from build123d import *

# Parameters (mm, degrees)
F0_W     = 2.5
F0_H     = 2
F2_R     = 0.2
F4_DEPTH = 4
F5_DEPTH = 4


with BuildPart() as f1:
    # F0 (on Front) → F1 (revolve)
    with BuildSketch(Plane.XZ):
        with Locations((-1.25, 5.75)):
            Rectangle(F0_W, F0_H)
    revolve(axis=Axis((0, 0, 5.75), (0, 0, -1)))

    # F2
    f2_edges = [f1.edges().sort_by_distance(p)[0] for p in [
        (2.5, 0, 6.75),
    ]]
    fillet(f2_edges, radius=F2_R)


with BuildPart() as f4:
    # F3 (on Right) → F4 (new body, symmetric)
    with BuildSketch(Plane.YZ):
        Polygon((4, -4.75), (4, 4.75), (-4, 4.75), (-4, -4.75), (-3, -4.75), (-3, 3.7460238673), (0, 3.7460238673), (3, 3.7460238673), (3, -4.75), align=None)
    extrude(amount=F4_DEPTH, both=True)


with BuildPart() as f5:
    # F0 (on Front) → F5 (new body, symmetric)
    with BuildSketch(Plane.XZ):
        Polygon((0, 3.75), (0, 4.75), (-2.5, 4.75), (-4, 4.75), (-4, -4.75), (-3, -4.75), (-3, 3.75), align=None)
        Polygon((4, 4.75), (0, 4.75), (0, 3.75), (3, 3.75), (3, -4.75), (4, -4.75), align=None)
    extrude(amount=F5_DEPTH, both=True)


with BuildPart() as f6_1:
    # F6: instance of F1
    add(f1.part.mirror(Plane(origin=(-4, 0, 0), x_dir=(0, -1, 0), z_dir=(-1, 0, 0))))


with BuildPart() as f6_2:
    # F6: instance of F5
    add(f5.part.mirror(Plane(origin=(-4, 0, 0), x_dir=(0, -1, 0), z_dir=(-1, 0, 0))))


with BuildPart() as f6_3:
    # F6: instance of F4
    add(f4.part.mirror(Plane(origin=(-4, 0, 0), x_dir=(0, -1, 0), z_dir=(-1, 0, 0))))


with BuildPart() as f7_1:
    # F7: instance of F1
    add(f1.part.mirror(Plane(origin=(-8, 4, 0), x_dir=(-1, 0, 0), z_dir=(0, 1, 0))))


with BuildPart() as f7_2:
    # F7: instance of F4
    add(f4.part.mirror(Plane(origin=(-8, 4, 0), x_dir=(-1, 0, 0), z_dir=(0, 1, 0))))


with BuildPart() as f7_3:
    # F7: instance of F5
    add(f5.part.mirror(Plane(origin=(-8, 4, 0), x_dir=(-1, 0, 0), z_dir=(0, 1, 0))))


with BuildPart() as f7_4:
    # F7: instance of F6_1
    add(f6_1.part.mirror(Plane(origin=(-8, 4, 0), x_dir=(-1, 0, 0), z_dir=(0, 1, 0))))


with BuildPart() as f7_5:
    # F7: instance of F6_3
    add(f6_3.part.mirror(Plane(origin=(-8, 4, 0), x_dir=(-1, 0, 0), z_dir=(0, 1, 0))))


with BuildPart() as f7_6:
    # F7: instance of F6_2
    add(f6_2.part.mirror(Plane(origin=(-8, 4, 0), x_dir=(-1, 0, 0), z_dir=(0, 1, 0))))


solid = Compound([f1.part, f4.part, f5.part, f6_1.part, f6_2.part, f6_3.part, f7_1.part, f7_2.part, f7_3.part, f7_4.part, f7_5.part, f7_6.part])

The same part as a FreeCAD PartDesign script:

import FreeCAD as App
import Part
import Sketcher
Q = App.Units.Quantity


def edges_at(feature, points):
    """Names of the edges that pass closest to the given points."""
    edges = feature.Shape.Edges
    near = lambda p: min(range(len(edges)), key=lambda i: edges[i].distToShape(Part.Vertex(*p))[0])
    return sorted({f"Edge{near(p) + 1}" for p in points})

doc = App.newDocument("Part")
body = doc.addObject("PartDesign::Body", "Body")

# Sketch on XZ plane
sketch1 = body.newObject("Sketcher::SketchObject", "Sketch")
sketch1.AttachmentSupport = (doc.getObject("XZ_Plane"), [""])
sketch1.MapMode = "FlatFace"
sketch1.addGeometry([
    Part.LineSegment(App.Vector(-2.5, 6.75, 0), App.Vector(-2.5, 4.75, 0)),
    Part.LineSegment(App.Vector(-2.5, 4.75, 0), App.Vector(0, 4.75, 0)),
    Part.LineSegment(App.Vector(0, 4.75, 0), App.Vector(0, 6.75, 0)),
    Part.LineSegment(App.Vector(0, 6.75, 0), App.Vector(-2.5, 6.75, 0)),
], False)
sketch1.addConstraint([
    Sketcher.Constraint("Coincident", 0, 2, 1, 1),
    Sketcher.Constraint("Coincident", 1, 2, 2, 1),
    Sketcher.Constraint("Coincident", 2, 2, 3, 1),
    Sketcher.Constraint("Coincident", 3, 2, 0, 1),
    Sketcher.Constraint("Vertical", 0),
    Sketcher.Constraint("Horizontal", 1),
    Sketcher.Constraint("Vertical", 2),
    Sketcher.Constraint("Horizontal", 3),
    Sketcher.Constraint("PointOnObject", 1, 2, -2),
    Sketcher.Constraint("DistanceY", 0, 2, 0, 1, Q("2 mm")),
    Sketcher.Constraint("DistanceX", 1, 1, 1, 2, Q("2.5 mm")),
    Sketcher.Constraint("DistanceY", -1, 1, 0, 2, Q("4.75 mm")),
])
revolution = body.newObject("PartDesign::Revolution", "Revolution")
revolution.Profile = sketch1
revolution.ReferenceAxis = (sketch1, ["V_Axis"])
revolution.Angle = 360
doc.recompute()

fillet = body.newObject("PartDesign::Fillet", "Fillet")
fillet.Base = (revolution, edges_at(revolution, [(2.5, 0, 6.75)]))
fillet.Radius = 0.2
body2 = doc.addObject("PartDesign::Body", "Body001")

# Sketch on YZ plane
sketch2 = body2.newObject("Sketcher::SketchObject", "Sketch001")
sketch2.AttachmentSupport = (doc.getObject("YZ_Plane001"), [""])
sketch2.MapMode = "FlatFace"
sketch2.addGeometry([
    Part.LineSegment(App.Vector(4, -4.75, 0), App.Vector(4, 4.75, 0)),  # 0
    Part.LineSegment(App.Vector(4, 4.75, 0), App.Vector(-4, 4.75, 0)),  # 1
    Part.LineSegment(App.Vector(-4, 4.75, 0), App.Vector(-4, -4.75, 0)),  # 2
    Part.LineSegment(App.Vector(-4, -4.75, 0), App.Vector(-3, -4.75, 0)),  # 3
    Part.LineSegment(App.Vector(-3, -4.75, 0), App.Vector(-3, 3.746024, 0)),  # 4
    Part.LineSegment(App.Vector(-3, 3.746024, 0), App.Vector(3, 3.746024, 0)),  # 5
    Part.LineSegment(App.Vector(3, 3.746024, 0), App.Vector(3, -4.75, 0)),  # 6
    Part.LineSegment(App.Vector(3, -4.75, 0), App.Vector(4, -4.75, 0)),  # 7
], False)
sketch2.addConstraint([
    Sketcher.Constraint("Coincident", 0, 2, 1, 1),
    Sketcher.Constraint("Coincident", 1, 2, 2, 1),
    Sketcher.Constraint("Coincident", 2, 2, 3, 1),
    Sketcher.Constraint("Coincident", 3, 2, 4, 1),
    Sketcher.Constraint("Coincident", 4, 2, 5, 1),
    Sketcher.Constraint("Coincident", 5, 2, 6, 1),
    Sketcher.Constraint("Coincident", 6, 2, 7, 1),
    Sketcher.Constraint("Coincident", 7, 2, 0, 1),
    Sketcher.Constraint("Vertical", 0),
    Sketcher.Constraint("Horizontal", 1),
    Sketcher.Constraint("Vertical", 2),
    Sketcher.Constraint("Horizontal", 3),
    Sketcher.Constraint("Vertical", 4),
    Sketcher.Constraint("Horizontal", 5),
    Sketcher.Constraint("Vertical", 6),
    Sketcher.Constraint("Horizontal", 7),
    Sketcher.Constraint("Symmetric", 0, 2, 2, 2, -1, 1),
    Sketcher.Constraint("Symmetric", 3, 2, 6, 2, -2),
    Sketcher.Constraint("DistanceX", 1, 2, 1, 1, Q("8 mm")),
    Sketcher.Constraint("DistanceX", 3, 1, 3, 2, Q("1 mm")),
    Sketcher.Constraint("DistanceY", 0, 1, 0, 2, Q("9.5 mm")),
    Sketcher.Constraint("DistanceY", 4, 1, 4, 2, Q("8.496024 mm")),
])
pad1 = body2.newObject("PartDesign::Pad", "Pad")
pad1.Profile = sketch2
pad1.Length = 8
pad1.Midplane = True
body3 = doc.addObject("PartDesign::Body", "Body002")

# Sketch on XZ plane
sketch3 = body3.newObject("Sketcher::SketchObject", "Sketch002")
sketch3.AttachmentSupport = (doc.getObject("XZ_Plane002"), [""])
sketch3.MapMode = "FlatFace"
sketch3.addGeometry([
    Part.LineSegment(App.Vector(-4, 4.75, 0), App.Vector(-4, -4.75, 0)),  # 0
    Part.LineSegment(App.Vector(-4, -4.75, 0), App.Vector(-3, -4.75, 0)),  # 1
    Part.LineSegment(App.Vector(-3, -4.75, 0), App.Vector(-3, 3.75, 0)),  # 2
    Part.LineSegment(App.Vector(-3, 3.75, 0), App.Vector(3, 3.75, 0)),  # 3
    Part.LineSegment(App.Vector(3, 3.75, 0), App.Vector(3, -4.75, 0)),  # 4
    Part.LineSegment(App.Vector(3, -4.75, 0), App.Vector(4, -4.75, 0)),  # 5
    Part.LineSegment(App.Vector(4, -4.75, 0), App.Vector(4, 4.75, 0)),  # 6
    Part.LineSegment(App.Vector(4, 4.75, 0), App.Vector(-4, 4.75, 0)),  # 7
], False)
sketch3.addConstraint([
    Sketcher.Constraint("Coincident", 0, 2, 1, 1),
    Sketcher.Constraint("Coincident", 1, 2, 2, 1),
    Sketcher.Constraint("Coincident", 2, 2, 3, 1),
    Sketcher.Constraint("Coincident", 3, 2, 4, 1),
    Sketcher.Constraint("Coincident", 4, 2, 5, 1),
    Sketcher.Constraint("Coincident", 5, 2, 6, 1),
    Sketcher.Constraint("Coincident", 6, 2, 7, 1),
    Sketcher.Constraint("Coincident", 7, 2, 0, 1),
    Sketcher.Constraint("Vertical", 0),
    Sketcher.Constraint("Horizontal", 1),
    Sketcher.Constraint("Vertical", 2),
    Sketcher.Constraint("Horizontal", 3),
    Sketcher.Constraint("Vertical", 4),
    Sketcher.Constraint("Horizontal", 5),
    Sketcher.Constraint("Vertical", 6),
    Sketcher.Constraint("Horizontal", 7),
    Sketcher.Constraint("Symmetric", 0, 2, 6, 2, -1, 1),
    Sketcher.Constraint("Symmetric", 1, 2, 4, 2, -2),
    Sketcher.Constraint("DistanceX", 1, 1, 1, 2, Q("1 mm")),
    Sketcher.Constraint("DistanceX", 3, 1, 3, 2, Q("6 mm")),
    Sketcher.Constraint("DistanceY", 0, 2, 0, 1, Q("9.5 mm")),
    Sketcher.Constraint("DistanceY", 2, 1, 2, 2, Q("8.5 mm")),
])
pad2 = body3.newObject("PartDesign::Pad", "Pad001")
pad2.Profile = sketch3
pad2.Length = 8
pad2.Midplane = True
body4 = doc.addObject("PartDesign::Body", "Body003")
doc.recompute()

mirroring = doc.addObject("Part::Mirroring", "Mirroring")
mirroring.Source = body
mirroring.Base = App.Vector(-4, 0, 0)
mirroring.Normal = App.Vector(-1, 0, 0)
body4.BaseFeature = mirroring
doc.recompute()
body5 = doc.addObject("PartDesign::Body", "Body004")
doc.recompute()

mirroring2 = doc.addObject("Part::Mirroring", "Mirroring001")
mirroring2.Source = body3
mirroring2.Base = App.Vector(-4, 0, 0)
mirroring2.Normal = App.Vector(-1, 0, 0)
body5.BaseFeature = mirroring2
doc.recompute()
body6 = doc.addObject("PartDesign::Body", "Body005")
doc.recompute()

mirroring3 = doc.addObject("Part::Mirroring", "Mirroring002")
mirroring3.Source = body2
mirroring3.Base = App.Vector(-4, 0, 0)
mirroring3.Normal = App.Vector(-1, 0, 0)
body6.BaseFeature = mirroring3
doc.recompute()
body7 = doc.addObject("PartDesign::Body", "Body006")
doc.recompute()

mirroring4 = doc.addObject("Part::Mirroring", "Mirroring003")
mirroring4.Source = body
mirroring4.Base = App.Vector(-8, 4, 0)
mirroring4.Normal = App.Vector(0, 1, 0)
body7.BaseFeature = mirroring4
doc.recompute()
body8 = doc.addObject("PartDesign::Body", "Body007")
doc.recompute()

mirroring5 = doc.addObject("Part::Mirroring", "Mirroring004")
mirroring5.Source = body2
mirroring5.Base = App.Vector(-8, 4, 0)
mirroring5.Normal = App.Vector(0, 1, 0)
body8.BaseFeature = mirroring5
doc.recompute()
body9 = doc.addObject("PartDesign::Body", "Body008")
doc.recompute()

mirroring6 = doc.addObject("Part::Mirroring", "Mirroring005")
mirroring6.Source = body3
mirroring6.Base = App.Vector(-8, 4, 0)
mirroring6.Normal = App.Vector(0, 1, 0)
body9.BaseFeature = mirroring6
doc.recompute()
body10 = doc.addObject("PartDesign::Body", "Body009")
doc.recompute()

mirroring7 = doc.addObject("Part::Mirroring", "Mirroring006")
mirroring7.Source = body4
mirroring7.Base = App.Vector(-8, 4, 0)
mirroring7.Normal = App.Vector(0, 1, 0)
body10.BaseFeature = mirroring7
doc.recompute()
body11 = doc.addObject("PartDesign::Body", "Body010")
doc.recompute()

mirroring8 = doc.addObject("Part::Mirroring", "Mirroring007")
mirroring8.Source = body6
mirroring8.Base = App.Vector(-8, 4, 0)
mirroring8.Normal = App.Vector(0, 1, 0)
body11.BaseFeature = mirroring8
doc.recompute()
body12 = doc.addObject("PartDesign::Body", "Body011")
doc.recompute()

mirroring9 = doc.addObject("Part::Mirroring", "Mirroring008")
mirroring9.Source = body5
mirroring9.Base = App.Vector(-8, 4, 0)
mirroring9.Normal = App.Vector(0, 1, 0)
body12.BaseFeature = mirroring9
doc.recompute()
mirroring.Visibility = False
mirroring2.Visibility = False
mirroring3.Visibility = False
mirroring4.Visibility = False
mirroring5.Visibility = False
mirroring6.Visibility = False
mirroring7.Visibility = False
mirroring8.Visibility = False
mirroring9.Visibility = False

doc.recompute()
